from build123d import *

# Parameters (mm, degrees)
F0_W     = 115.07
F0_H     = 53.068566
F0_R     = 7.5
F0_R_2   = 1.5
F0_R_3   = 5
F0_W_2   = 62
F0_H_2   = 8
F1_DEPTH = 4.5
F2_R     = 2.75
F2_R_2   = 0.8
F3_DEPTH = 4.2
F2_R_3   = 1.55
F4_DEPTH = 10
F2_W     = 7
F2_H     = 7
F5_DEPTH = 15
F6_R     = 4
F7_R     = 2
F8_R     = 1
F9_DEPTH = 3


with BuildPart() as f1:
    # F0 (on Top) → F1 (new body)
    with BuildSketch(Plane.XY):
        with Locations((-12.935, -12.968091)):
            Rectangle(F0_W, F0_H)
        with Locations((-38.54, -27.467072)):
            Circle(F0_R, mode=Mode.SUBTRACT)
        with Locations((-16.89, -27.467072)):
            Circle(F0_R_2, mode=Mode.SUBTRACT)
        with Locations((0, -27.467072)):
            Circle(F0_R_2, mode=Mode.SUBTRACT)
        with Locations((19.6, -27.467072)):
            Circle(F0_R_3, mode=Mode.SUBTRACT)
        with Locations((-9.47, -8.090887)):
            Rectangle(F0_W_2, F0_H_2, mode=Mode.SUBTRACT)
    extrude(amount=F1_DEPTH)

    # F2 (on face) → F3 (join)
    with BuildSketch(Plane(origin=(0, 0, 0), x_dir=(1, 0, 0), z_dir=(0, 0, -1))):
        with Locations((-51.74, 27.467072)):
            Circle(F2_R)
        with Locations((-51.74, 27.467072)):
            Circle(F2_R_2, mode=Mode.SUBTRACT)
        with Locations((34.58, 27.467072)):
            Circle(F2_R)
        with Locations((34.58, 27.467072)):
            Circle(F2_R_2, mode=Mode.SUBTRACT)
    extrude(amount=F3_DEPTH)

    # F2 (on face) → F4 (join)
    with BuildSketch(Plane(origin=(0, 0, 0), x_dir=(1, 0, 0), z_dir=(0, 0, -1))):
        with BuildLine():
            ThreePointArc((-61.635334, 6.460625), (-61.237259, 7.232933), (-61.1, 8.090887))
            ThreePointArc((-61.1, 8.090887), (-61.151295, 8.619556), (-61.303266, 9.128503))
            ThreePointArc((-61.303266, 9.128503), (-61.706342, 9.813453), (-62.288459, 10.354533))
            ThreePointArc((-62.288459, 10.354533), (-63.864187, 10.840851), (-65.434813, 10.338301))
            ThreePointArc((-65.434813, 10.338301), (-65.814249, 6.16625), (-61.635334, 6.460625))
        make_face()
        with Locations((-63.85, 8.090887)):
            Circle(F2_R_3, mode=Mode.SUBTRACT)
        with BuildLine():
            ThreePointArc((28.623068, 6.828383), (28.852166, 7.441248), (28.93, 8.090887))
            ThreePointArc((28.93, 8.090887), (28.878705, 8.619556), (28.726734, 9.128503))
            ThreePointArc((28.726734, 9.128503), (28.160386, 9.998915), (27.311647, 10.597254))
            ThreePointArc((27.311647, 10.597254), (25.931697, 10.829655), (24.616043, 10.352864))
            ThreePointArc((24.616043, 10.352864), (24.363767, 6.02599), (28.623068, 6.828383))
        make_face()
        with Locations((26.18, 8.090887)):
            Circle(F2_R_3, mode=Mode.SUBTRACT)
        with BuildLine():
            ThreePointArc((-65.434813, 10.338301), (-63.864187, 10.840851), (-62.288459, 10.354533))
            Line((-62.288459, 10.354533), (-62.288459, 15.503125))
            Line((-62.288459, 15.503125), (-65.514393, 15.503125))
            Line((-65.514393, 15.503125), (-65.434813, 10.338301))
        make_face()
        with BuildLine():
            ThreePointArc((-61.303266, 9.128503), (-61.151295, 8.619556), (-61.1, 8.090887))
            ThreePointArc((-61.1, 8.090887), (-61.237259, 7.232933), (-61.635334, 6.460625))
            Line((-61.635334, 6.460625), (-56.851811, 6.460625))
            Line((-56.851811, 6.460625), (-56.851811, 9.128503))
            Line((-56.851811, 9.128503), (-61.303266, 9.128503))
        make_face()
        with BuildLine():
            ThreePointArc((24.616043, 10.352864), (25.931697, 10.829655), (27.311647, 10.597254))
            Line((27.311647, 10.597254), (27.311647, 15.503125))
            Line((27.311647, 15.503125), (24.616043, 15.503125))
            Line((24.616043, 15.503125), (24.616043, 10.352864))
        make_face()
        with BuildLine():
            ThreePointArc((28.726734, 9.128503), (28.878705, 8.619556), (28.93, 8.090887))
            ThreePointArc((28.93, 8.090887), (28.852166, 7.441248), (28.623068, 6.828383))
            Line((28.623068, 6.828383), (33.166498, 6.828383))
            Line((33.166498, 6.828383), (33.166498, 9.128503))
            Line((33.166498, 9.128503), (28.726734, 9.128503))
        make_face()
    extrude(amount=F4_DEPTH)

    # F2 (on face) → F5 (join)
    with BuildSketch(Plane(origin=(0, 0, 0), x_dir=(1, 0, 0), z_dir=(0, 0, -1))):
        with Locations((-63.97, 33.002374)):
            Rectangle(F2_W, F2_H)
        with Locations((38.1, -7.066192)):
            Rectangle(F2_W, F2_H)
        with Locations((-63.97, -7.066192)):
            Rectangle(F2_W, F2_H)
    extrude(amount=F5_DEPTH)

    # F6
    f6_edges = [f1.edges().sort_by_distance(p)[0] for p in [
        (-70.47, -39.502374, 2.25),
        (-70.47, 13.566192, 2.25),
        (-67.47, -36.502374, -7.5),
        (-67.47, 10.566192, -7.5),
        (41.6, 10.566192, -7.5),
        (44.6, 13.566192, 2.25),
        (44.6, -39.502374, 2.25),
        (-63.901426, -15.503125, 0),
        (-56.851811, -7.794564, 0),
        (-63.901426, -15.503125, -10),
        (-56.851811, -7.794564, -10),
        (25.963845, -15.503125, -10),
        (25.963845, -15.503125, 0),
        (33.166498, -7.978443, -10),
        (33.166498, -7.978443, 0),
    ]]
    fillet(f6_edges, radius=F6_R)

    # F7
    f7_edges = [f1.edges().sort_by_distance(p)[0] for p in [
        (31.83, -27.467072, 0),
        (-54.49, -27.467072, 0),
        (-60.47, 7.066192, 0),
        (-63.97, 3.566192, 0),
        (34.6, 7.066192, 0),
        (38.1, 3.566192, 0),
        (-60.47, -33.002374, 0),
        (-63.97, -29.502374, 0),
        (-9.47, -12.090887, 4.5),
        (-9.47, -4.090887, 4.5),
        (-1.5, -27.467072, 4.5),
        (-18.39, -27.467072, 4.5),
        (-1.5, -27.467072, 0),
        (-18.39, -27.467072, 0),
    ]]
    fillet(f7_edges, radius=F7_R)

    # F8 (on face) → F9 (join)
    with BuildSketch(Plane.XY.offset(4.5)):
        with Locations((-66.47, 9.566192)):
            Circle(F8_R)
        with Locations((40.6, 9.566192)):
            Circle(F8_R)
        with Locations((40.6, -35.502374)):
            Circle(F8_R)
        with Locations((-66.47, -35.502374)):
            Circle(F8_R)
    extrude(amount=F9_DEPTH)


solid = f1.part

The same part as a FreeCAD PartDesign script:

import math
import FreeCAD as App
import Part
import Sketcher

V = App.Vector
Q = App.Units.Quantity


def edges_at(feature, points):
    """Names of the edges that pass closest to the given points."""
    edges = feature.Shape.Edges
    near = lambda p: min(range(len(edges)), key=lambda i: edges[i].distToShape(Part.Vertex(*p))[0])
    return sorted({f"Edge{near(p) + 1}" for p in points})

doc = App.newDocument("Part")
body = doc.addObject("PartDesign::Body", "Body")

# Sketch on XY plane
sketch1 = body.newObject("Sketcher::SketchObject", "Sketch")
sketch1.AttachmentSupport = (doc.getObject("XY_Plane"), [""])
sketch1.MapMode = "FlatFace"
sketch1.addGeometry(Part.LineSegment(V(-70.5, 13.6, 0), V(-70.5, -39.5, 0)), False)
sketch1.addGeometry(Part.LineSegment(V(-70.5, -39.5, 0), V(44.6, -39.5, 0)), False)
sketch1.addGeometry(Part.LineSegment(V(44.6, -39.5, 0), V(44.6, 13.6, 0)), False)
sketch1.addGeometry(Part.LineSegment(V(44.6, 13.6, 0), V(-70.5, 13.6, 0)), False)
sketch1.addGeometry(Part.Circle(V(-38.5, -27.5, 0), V(0, 0, 1), 7.5), False)
sketch1.addGeometry(Part.Circle(V(-16.9, -27.5, 0), V(0, 0, 1), 1.5), False)
sketch1.addGeometry(Part.Circle(V(0, -27.5, 0), V(0, 0, 1), 1.5), False)
sketch1.addGeometry(Part.Circle(V(19.6, -27.5, 0), V(0, 0, 1), 5), False)
sketch1.addGeometry(Part.LineSegment(V(21.5, -12.1, 0), V(-40.5, -12.1, 0)), False)
sketch1.addGeometry(Part.LineSegment(V(-40.5, -12.1, 0), V(-40.5, -4.1, 0)), False)
sketch1.addGeometry(Part.LineSegment(V(-40.5, -4.1, 0), V(21.5, -4.1, 0)), False)
sketch1.addGeometry(Part.LineSegment(V(21.5, -4.1, 0), V(21.5, -12.1, 0)), False)
sketch1.addConstraint(Sketcher.Constraint("Coincident", 0, 2, 1, 1))
sketch1.addConstraint(Sketcher.Constraint("Coincident", 1, 2, 2, 1))
sketch1.addConstraint(Sketcher.Constraint("Coincident", 2, 2, 3, 1))
sketch1.addConstraint(Sketcher.Constraint("Coincident", 3, 2, 0, 1))
sketch1.addConstraint(Sketcher.Constraint("Coincident", 8, 2, 9, 1))
sketch1.addConstraint(Sketcher.Constraint("Coincident", 9, 2, 10, 1))
sketch1.addConstraint(Sketcher.Constraint("Coincident", 10, 2, 11, 1))
sketch1.addConstraint(Sketcher.Constraint("Coincident", 11, 2, 8, 1))
sketch1.addConstraint(Sketcher.Constraint("Vertical", 0))
sketch1.addConstraint(Sketcher.Constraint("Horizontal", 1))
sketch1.addConstraint(Sketcher.Constraint("Vertical", 2))
sketch1.addConstraint(Sketcher.Constraint("Horizontal", 3))
sketch1.addConstraint(Sketcher.Constraint("Horizontal", 8))
sketch1.addConstraint(Sketcher.Constraint("Vertical", 9))
sketch1.addConstraint(Sketcher.Constraint("Horizontal", 10))
sketch1.addConstraint(Sketcher.Constraint("Vertical", 11))
sketch1.addConstraint(Sketcher.Constraint("Equal", 5, 6))
sketch1.addConstraint(Sketcher.Constraint("PointOnObject", 6, 3, -2))
sketch1.addConstraint(Sketcher.Constraint("Horizontal", 4, 3, 5, 3))
sketch1.addConstraint(Sketcher.Constraint("Horizontal", 5, 3, 6, 3))
sketch1.addConstraint(Sketcher.Constraint("Horizontal", 6, 3, 7, 3))
sketch1.addConstraint(Sketcher.Constraint("Diameter", 4, Q("15 mm")))
sketch1.addConstraint(Sketcher.Constraint("Diameter", 5, Q("3 mm")))
sketch1.addConstraint(Sketcher.Constraint("Diameter", 7, Q("10 mm")))
sketch1.addConstraint(Sketcher.Constraint("DistanceX", 8, 2, 8, 1, Q("62 mm")))
sketch1.addConstraint(Sketcher.Constraint("DistanceY", 9, 1, 9, 2, Q("8 mm")))
sketch1.addConstraint(Sketcher.Constraint("DistanceX", 7, 3, 1, 2, Q("25 mm")))
sketch1.addConstraint(Sketcher.Constraint("DistanceX", 3, 2, 8, 2, Q("30 mm")))
sketch1.addConstraint(Sketcher.Constraint("DistanceX", 1, 1, 1, 2, Q("115.07 mm")))
sketch1.addConstraint(Sketcher.Constraint("DistanceX", -1, 1, 7, 3, Q("19.6 mm")))
sketch1.addConstraint(Sketcher.Constraint("DistanceX", 4, 3, -1, 1, Q("38.54 mm")))
sketch1.addConstraint(Sketcher.Constraint("DistanceX", 5, 3, -1, 1, Q("16.89 mm")))
sketch1.addConstraint(Sketcher.Constraint("DistanceY", 0, 2, 0, 1, Q("53.068566 mm")))
sketch1.addConstraint(Sketcher.Constraint("DistanceY", -1, 1, 2, 2, Q("13.566192 mm")))
sketch1.addConstraint(Sketcher.Constraint("DistanceY", 8, 2, 3, 2, Q("25.657079 mm")))
sketch1.addConstraint(Sketcher.Constraint("DistanceY", 4, 3, -1, 1, Q("27.467072 mm")))
pad1 = body.newObject("PartDesign::Pad", "Pad")
pad1.Profile = sketch1
pad1.Length = 4.5

# Sketch on XY plane
sketch2 = body.newObject("Sketcher::SketchObject", "Sketch001")
sketch2.AttachmentSupport = (doc.getObject("XY_Plane"), [""])
sketch2.MapMode = "FlatFace"
sketch2.addGeometry(Part.Circle(V(-51.7, -27.5, 0), V(0, 0, 1), 2.8), False)
sketch2.addGeometry(Part.Circle(V(-51.7, -27.5, 0), V(0, 0, 1), 0.8), False)
sketch2.addGeometry(Part.Circle(V(34.6, -27.5, 0), V(0, 0, 1), 2.8), False)
sketch2.addGeometry(Part.Circle(V(34.6, -27.5, 0), V(0, 0, 1), 0.8), False)
sketch2.addConstraint(Sketcher.Constraint("Coincident", 1, 3, 0, 3))
sketch2.addConstraint(Sketcher.Constraint("Coincident", 3, 3, 2, 3))
sketch2.addConstraint(Sketcher.Constraint("Equal", 0, 2))
sketch2.addConstraint(Sketcher.Constraint("Equal", 1, 3))
sketch2.addConstraint(Sketcher.Constraint("Horizontal", 1, 3, 2, 3))
sketch2.addConstraint(Sketcher.Constraint("Diameter", 0, Q("5.5 mm")))
sketch2.addConstraint(Sketcher.Constraint("Diameter", 1, Q("1.6 mm")))
sketch2.addConstraint(Sketcher.Constraint("DistanceX", 0, 3, -1, 1, Q("51.74 mm")))
sketch2.addConstraint(Sketcher.Constraint("DistanceX", -1, 1, 2, 3, Q("34.58 mm")))
sketch2.addConstraint(Sketcher.Constraint("DistanceY", 0, 3, -1, 1, Q("27.467072 mm")))
pad2 = body.newObject("PartDesign::Pad", "Pad001")
pad2.Profile = sketch2
pad2.Length = 4.2
pad2.Reversed = True

# Sketch on XY plane
sketch3 = body.newObject("Sketcher::SketchObject", "Sketch002")
sketch3.AttachmentSupport = (doc.getObject("XY_Plane"), [""])
sketch3.MapMode = "FlatFace"
sketch3.addGeometry(Part.ArcOfCircle(Part.Circle(V(-63.8, -8.1, 0), V(0, 0, 1), 2.7), math.radians(-55), math.radians(-22)), False)
sketch3.addGeometry(Part.LineSegment(V(-62.3, -10.4, 0), V(-62.3, -15.5, 0)), False)
sketch3.addGeometry(Part.LineSegment(V(-62.3, -15.5, 0), V(-65.5, -15.5, 0)), False)
sketch3.addGeometry(Part.LineSegment(V(-65.5, -15.5, 0), V(-65.4, -10.3, 0)), False)
sketch3.addGeometry(Part.ArcOfCircle(Part.Circle(V(-63.9, -8.1, 0), V(0, 0, 1), 2.8), math.radians(36), math.radians(235)), False)
sketch3.addGeometry(Part.LineSegment(V(-61.6, -6.5, 0), V(-56.9, -6.5, 0)), False)
sketch3.addGeometry(Part.LineSegment(V(-56.9, -6.5, 0), V(-56.9, -9.1, 0)), False)
sketch3.addGeometry(Part.LineSegment(V(-56.9, -9.1, 0), V(-61.3, -9.1, 0)), False)
sketch3.addGeometry(Part.Circle(V(-63.9, -8.1, 0), V(0, 0, 1), 1.6), False)
sketch3.addGeometry(Part.ArcOfCircle(Part.Circle(V(26.2, -8.1, 0), V(0, 0, 1), 2.8), math.radians(-66), math.radians(-22)), False)
sketch3.addGeometry(Part.LineSegment(V(27.3, -10.6, 0), V(27.3, -15.5, 0)), False)
sketch3.addGeometry(Part.LineSegment(V(27.3, -15.5, 0), V(24.6, -15.5, 0)), False)
sketch3.addGeometry(Part.LineSegment(V(24.6, -15.5, 0), V(24.6, -10.4, 0)), False)
sketch3.addGeometry(Part.ArcOfCircle(Part.Circle(V(26.2, -8.1, 0), V(0, 0, 1), 2.7), math.radians(27), math.radians(235)), False)
sketch3.addGeometry(Part.LineSegment(V(28.6, -6.8, 0), V(33.2, -6.8, 0)), False)
sketch3.addGeometry(Part.LineSegment(V(33.2, -6.8, 0), V(33.2, -9.1, 0)), False)
sketch3.addGeometry(Part.LineSegment(V(33.2, -9.1, 0), V(28.7, -9.1, 0)), False)
sketch3.addGeometry(Part.Circle(V(26.2, -8.1, 0), V(0, 0, 1), 1.6), False)
sketch3.addConstraint(Sketcher.Constraint("Coincident", 0, 1, 1, 1))
sketch3.addConstraint(Sketcher.Constraint("Coincident", 1, 2, 2, 1))
sketch3.addConstraint(Sketcher.Constraint("Coincident", 2, 2, 3, 1))
sketch3.addConstraint(Sketcher.Constraint("Coincident", 3, 2, 4, 2))
sketch3.addConstraint(Sketcher.Constraint("Coincident", 4, 1, 5, 1))
sketch3.addConstraint(Sketcher.Constraint("Coincident", 5, 2, 6, 1))
sketch3.addConstraint(Sketcher.Constraint("Coincident", 6, 2, 7, 1))
sketch3.addConstraint(Sketcher.Constraint("Coincident", 7, 2, 0, 2))
sketch3.addConstraint(Sketcher.Constraint("Coincident", 9, 1, 10, 1))
sketch3.addConstraint(Sketcher.Constraint("Coincident", 10, 2, 11, 1))
sketch3.addConstraint(Sketcher.Constraint("Coincident", 11, 2, 12, 1))
sketch3.addConstraint(Sketcher.Constraint("Coincident", 12, 2, 13, 2))
sketch3.addConstraint(Sketcher.Constraint("Coincident", 13, 1, 14, 1))
sketch3.addConstraint(Sketcher.Constraint("Coincident", 14, 2, 15, 1))
sketch3.addConstraint(Sketcher.Constraint("Coincident", 15, 2, 16, 1))
sketch3.addConstraint(Sketcher.Constraint("Coincident", 16, 2, 9, 2))
sketch3.addConstraint(Sketcher.Constraint("Vertical", 1))
sketch3.addConstraint(Sketcher.Constraint("Horizontal", 2))
sketch3.addConstraint(Sketcher.Constraint("Horizontal", 5))
sketch3.addConstraint(Sketcher.Constraint("Vertical", 6))
sketch3.addConstraint(Sketcher.Constraint("Horizontal", 7))
sketch3.addConstraint(Sketcher.Constraint("Vertical", 10))
sketch3.addConstraint(Sketcher.Constraint("Horizontal", 11))
sketch3.addConstraint(Sketcher.Constraint("Vertical", 12))
sketch3.addConstraint(Sketcher.Constraint("Horizontal", 14))
sketch3.addConstraint(Sketcher.Constraint("Vertical", 15))
sketch3.addConstraint(Sketcher.Constraint("Horizontal", 16))
sketch3.addConstraint(Sketcher.Constraint("Coincident", 4, 3, 0, 3))
sketch3.addConstraint(Sketcher.Constraint("Coincident", 8, 3, 0, 3))
sketch3.addConstraint(Sketcher.Constraint("Coincident", 13, 3, 9, 3))
sketch3.addConstraint(Sketcher.Constraint("Coincident", 17, 3, 9, 3))
sketch3.addConstraint(Sketcher.Constraint("Equal", 4, 13))
sketch3.addConstraint(Sketcher.Constraint("Equal", 8, 17))
sketch3.addConstraint(Sketcher.Constraint("Horizontal", 8, 3, 13, 3))
sketch3.addConstraint(Sketcher.Constraint("Horizontal", 2, 2, 10, 2))
sketch3.addConstraint(Sketcher.Constraint("Horizontal", 7, 2, 15, 2))
sketch3.addConstraint(Sketcher.Constraint("Diameter", 8, Q("3.1 mm")))
sketch3.addConstraint(Sketcher.Constraint("Radius", 4, Q("2.75 mm")))
sketch3.addConstraint(Sketcher.Constraint("DistanceX", 4, 3, -1, 1, Q("63.85 mm")))
sketch3.addConstraint(Sketcher.Constraint("DistanceX", -1, 1, 13, 3, Q("26.179999 mm")))
sketch3.addConstraint(Sketcher.Constraint("Radius", 0, Q("2.749996 mm")))
sketch3.addConstraint(Sketcher.Constraint("Radius", 9, Q("2.750003 mm")))
sketch3.addConstraint(Sketcher.Constraint("DistanceX", 14, 1, 14, 2, Q("4.54343 mm")))
sketch3.addConstraint(Sketcher.Constraint("DistanceY", 6, 2, 6, 1, Q("2.667878 mm")))
sketch3.addConstraint(Sketcher.Constraint("DistanceY", 10, 2, 10, 1, Q("4.905871 mm")))
sketch3.addConstraint(Sketcher.Constraint("DistanceY", 12, 1, 12, 2, Q("5.150261 mm")))
sketch3.addConstraint(Sketcher.Constraint("DistanceY", 15, 2, 15, 1, Q("2.30012 mm")))
sketch3.addConstraint(Sketcher.Constraint("DistanceY", 3, 2, -1, 1, Q("10.338301 mm")))
sketch3.addConstraint(Sketcher.Constraint("DistanceY", 9, 3, 13, 1, Q("1.262502 mm")))
sketch3.addConstraint(Sketcher.Constraint("DistanceX", 2, 2, 2, 1, Q("3.225934 mm")))
sketch3.addConstraint(Sketcher.Constraint("DistanceX", 5, 1, 5, 2, Q("4.783523 mm")))
sketch3.addConstraint(Sketcher.Constraint("DistanceX", 11, 2, 11, 1, Q("2.695604 mm")))
sketch3.addConstraint(Sketcher.Constraint("DistanceY", 1, 2, 1, 1, Q("5.148592 mm")))
sketch3.addConstraint(Sketcher.Constraint("DistanceY", 0, 3, -1, 1, Q("8.09089 mm")))
pad3 = body.newObject("PartDesign::Pad", "Pad002")
pad3.Profile = sketch3
pad3.Length = 10
pad3.Reversed = True

# Sketch on XY plane
sketch4 = body.newObject("Sketcher::SketchObject", "Sketch003")
sketch4.AttachmentSupport = (doc.getObject("XY_Plane"), [""])
sketch4.MapMode = "FlatFace"
sketch4.addGeometry(Part.LineSegment(V(-67, -37, 0), V(-67, -30, 0)), False)
sketch4.addGeometry(Part.LineSegment(V(-67, -30, 0), V(-60, -30, 0)), False)
sketch4.addGeometry(Part.LineSegment(V(-60, -30, 0), V(-60, -37, 0)), False)
sketch4.addGeometry(Part.LineSegment(V(-60, -37, 0), V(-67, -37, 0)), False)
sketch4.addGeometry(Part.LineSegment(V(35, 4, 0), V(35, 11, 0)), False)
sketch4.addGeometry(Part.LineSegment(V(35, 11, 0), V(42, 11, 0)), False)
sketch4.addGeometry(Part.LineSegment(V(42, 11, 0), V(42, 4, 0)), False)
sketch4.addGeometry(Part.LineSegment(V(42, 4, 0), V(35, 4, 0)), False)
sketch4.addGeometry(Part.LineSegment(V(-67, 4, 0), V(-67, 11, 0)), False)
sketch4.addGeometry(Part.LineSegment(V(-67, 11, 0), V(-60, 11, 0)), False)
sketch4.addGeometry(Part.LineSegment(V(-60, 11, 0), V(-60, 4, 0)), False)
sketch4.addGeometry(Part.LineSegment(V(-60, 4, 0), V(-67, 4, 0)), False)
sketch4.addConstraint(Sketcher.Constraint("Coincident", 0, 2, 1, 1))
sketch4.addConstraint(Sketcher.Constraint("Coincident", 1, 2, 2, 1))
sketch4.addConstraint(Sketcher.Constraint("Coincident", 2, 2, 3, 1))
sketch4.addConstraint(Sketcher.Constraint("Coincident", 3, 2, 0, 1))
sketch4.addConstraint(Sketcher.Constraint("Coincident", 4, 2, 5, 1))
sketch4.addConstraint(Sketcher.Constraint("Coincident", 5, 2, 6, 1))
sketch4.addConstraint(Sketcher.Constraint("Coincident", 6, 2, 7, 1))
sketch4.addConstraint(Sketcher.Constraint("Coincident", 7, 2, 4, 1))
sketch4.addConstraint(Sketcher.Constraint("Coincident", 8, 2, 9, 1))
sketch4.addConstraint(Sketcher.Constraint("Coincident", 9, 2, 10, 1))
sketch4.addConstraint(Sketcher.Constraint("Coincident", 10, 2, 11, 1))
sketch4.addConstraint(Sketcher.Constraint("Coincident", 11, 2, 8, 1))
sketch4.addConstraint(Sketcher.Constraint("Vertical", 0))
sketch4.addConstraint(Sketcher.Constraint("Horizontal", 1))
sketch4.addConstraint(Sketcher.Constraint("Vertical", 2))
sketch4.addConstraint(Sketcher.Constraint("Horizontal", 3))
sketch4.addConstraint(Sketcher.Constraint("Vertical", 4))
sketch4.addConstraint(Sketcher.Constraint("Horizontal", 5))
sketch4.addConstraint(Sketcher.Constraint("Vertical", 6))
sketch4.addConstraint(Sketcher.Constraint("Horizontal", 7))
sketch4.addConstraint(Sketcher.Constraint("Vertical", 8))
sketch4.addConstraint(Sketcher.Constraint("Horizontal", 9))
sketch4.addConstraint(Sketcher.Constraint("Vertical", 10))
sketch4.addConstraint(Sketcher.Constraint("Horizontal", 11))
sketch4.addConstraint(Sketcher.Constraint("Horizontal", 5, 2, 8, 2))
sketch4.addConstraint(Sketcher.Constraint("Horizontal", 7, 2, 10, 2))
sketch4.addConstraint(Sketcher.Constraint("Vertical", 3, 2, 8, 2))
sketch4.addConstraint(Sketcher.Constraint("Vertical", 2, 2, 9, 2))
sketch4.addConstraint(Sketcher.Constraint("Equal", 3, 5))
sketch4.addConstraint(Sketcher.Constraint("Equal", 11, 0))
sketch4.addConstraint(Sketcher.Constraint("Equal", 2, 4))
sketch4.addConstraint(Sketcher.Constraint("DistanceX", 1, 1, 1, 2, Q("7 mm")))
sketch4.addConstraint(Sketcher.Constraint("DistanceX", -1, 1, 4, 2, Q("34.6 mm")))
sketch4.addConstraint(Sketcher.Constraint("DistanceX", 0, 2, -1, 1, Q("67.47 mm")))
sketch4.addConstraint(Sketcher.Constraint("DistanceY", -1, 1, 4, 2, Q("10.566192 mm")))
sketch4.addConstraint(Sketcher.Constraint("DistanceY", 0, 2, -1, 1, Q("29.502374 mm")))
pad4 = body.newObject("PartDesign::Pad", "Pad003")
pad4.Profile = sketch4
pad4.Length = 15
pad4.Reversed = True
doc.recompute()

fillet = body.newObject("PartDesign::Fillet", "Fillet")
fillet.Base = (pad4, edges_at(pad4, [
    (-70.47, -39.502, 2.25),
    (-70.47, 13.566, 2.25),
    (-67.47, -36.502, -7.5),
    (-67.47, 10.566, -7.5),
    (41.6, 10.566, -7.5),
    (44.6, 13.566, 2.25),
    (44.6, -39.502, 2.25),
    (-63.901, -15.503, 0),
    (-56.852, -7.795, 0),
    (-63.901, -15.503, -10),
    (-56.852, -7.795, -10),
    (25.964, -15.503, -10),
    (25.964, -15.503, 0),
    (33.166, -7.978, -10),
    (33.166, -7.978, 0),
]))
fillet.Radius = 4
doc.recompute()

fillet2 = body.newObject("PartDesign::Fillet", "Fillet001")
fillet2.Base = (fillet, edges_at(fillet, [
    (31.83, -27.467, 0),
    (-54.49, -27.467, 0),
    (-60.47, 7.066, 0),
    (-63.97, 3.566, 0),
    (34.6, 7.066, 0),
    (38.1, 3.566, 0),
    (-60.47, -33.002, 0),
    (-63.97, -29.502, 0),
    (-9.47, -12.091, 4.5),
    (-9.47, -4.091, 4.5),
    (-1.5, -27.467, 4.5),
    (-18.39, -27.467, 4.5),
    (-1.5, -27.467, 0),
    (-18.39, -27.467, 0),
]))
fillet2.Radius = 2

# Sketch on XY plane
sketch5 = body.newObject("Sketcher::SketchObject", "Sketch004")
sketch5.AttachmentSupport = (doc.getObject("XY_Plane"), [""])
sketch5.MapMode = "FlatFace"
sketch5.AttachmentOffset = App.Placement(V(0, 0, 4.5), App.Rotation())
sketch5.addGeometry(Part.Circle(V(-66.5, 9.6, 0), V(0, 0, 1), 1), False)
sketch5.addGeometry(Part.Circle(V(40.6, 9.6, 0), V(0, 0, 1), 1), False)
sketch5.addGeometry(Part.Circle(V(40.6, -35.5, 0), V(0, 0, 1), 1), False)
sketch5.addGeometry(Part.Circle(V(-66.5, -35.5, 0), V(0, 0, 1), 1), False)
sketch5.addConstraint(Sketcher.Constraint("Equal", 0, 1))
sketch5.addConstraint(Sketcher.Constraint("Equal", 1, 2))
sketch5.addConstraint(Sketcher.Constraint("Equal", 2, 3))
sketch5.addConstraint(Sketcher.Constraint("Horizontal", 0, 3, 1, 3))
sketch5.addConstraint(Sketcher.Constraint("Horizontal", 2, 3, 3, 3))
sketch5.addConstraint(Sketcher.Constraint("Vertical", 1, 3, 2, 3))
sketch5.addConstraint(Sketcher.Constraint("Vertical", 0, 3, 3, 3))
sketch5.addConstraint(Sketcher.Constraint("Diameter", 0, Q("2 mm")))
sketch5.addConstraint(Sketcher.Constraint("DistanceX", -1, 1, 1, 3, Q("40.6 mm")))
sketch5.addConstraint(Sketcher.Constraint("DistanceX", 0, 3, -1, 1, Q("66.47 mm")))
sketch5.addConstraint(Sketcher.Constraint("DistanceY", -1, 1, 0, 3, Q("9.566192 mm")))
sketch5.addConstraint(Sketcher.Constraint("DistanceY", 2, 3, -1, 1, Q("35.502374 mm")))
pad5 = body.newObject("PartDesign::Pad", "Pad004")
pad5.Profile = sketch5
pad5.Length = 3

doc.recompute()
